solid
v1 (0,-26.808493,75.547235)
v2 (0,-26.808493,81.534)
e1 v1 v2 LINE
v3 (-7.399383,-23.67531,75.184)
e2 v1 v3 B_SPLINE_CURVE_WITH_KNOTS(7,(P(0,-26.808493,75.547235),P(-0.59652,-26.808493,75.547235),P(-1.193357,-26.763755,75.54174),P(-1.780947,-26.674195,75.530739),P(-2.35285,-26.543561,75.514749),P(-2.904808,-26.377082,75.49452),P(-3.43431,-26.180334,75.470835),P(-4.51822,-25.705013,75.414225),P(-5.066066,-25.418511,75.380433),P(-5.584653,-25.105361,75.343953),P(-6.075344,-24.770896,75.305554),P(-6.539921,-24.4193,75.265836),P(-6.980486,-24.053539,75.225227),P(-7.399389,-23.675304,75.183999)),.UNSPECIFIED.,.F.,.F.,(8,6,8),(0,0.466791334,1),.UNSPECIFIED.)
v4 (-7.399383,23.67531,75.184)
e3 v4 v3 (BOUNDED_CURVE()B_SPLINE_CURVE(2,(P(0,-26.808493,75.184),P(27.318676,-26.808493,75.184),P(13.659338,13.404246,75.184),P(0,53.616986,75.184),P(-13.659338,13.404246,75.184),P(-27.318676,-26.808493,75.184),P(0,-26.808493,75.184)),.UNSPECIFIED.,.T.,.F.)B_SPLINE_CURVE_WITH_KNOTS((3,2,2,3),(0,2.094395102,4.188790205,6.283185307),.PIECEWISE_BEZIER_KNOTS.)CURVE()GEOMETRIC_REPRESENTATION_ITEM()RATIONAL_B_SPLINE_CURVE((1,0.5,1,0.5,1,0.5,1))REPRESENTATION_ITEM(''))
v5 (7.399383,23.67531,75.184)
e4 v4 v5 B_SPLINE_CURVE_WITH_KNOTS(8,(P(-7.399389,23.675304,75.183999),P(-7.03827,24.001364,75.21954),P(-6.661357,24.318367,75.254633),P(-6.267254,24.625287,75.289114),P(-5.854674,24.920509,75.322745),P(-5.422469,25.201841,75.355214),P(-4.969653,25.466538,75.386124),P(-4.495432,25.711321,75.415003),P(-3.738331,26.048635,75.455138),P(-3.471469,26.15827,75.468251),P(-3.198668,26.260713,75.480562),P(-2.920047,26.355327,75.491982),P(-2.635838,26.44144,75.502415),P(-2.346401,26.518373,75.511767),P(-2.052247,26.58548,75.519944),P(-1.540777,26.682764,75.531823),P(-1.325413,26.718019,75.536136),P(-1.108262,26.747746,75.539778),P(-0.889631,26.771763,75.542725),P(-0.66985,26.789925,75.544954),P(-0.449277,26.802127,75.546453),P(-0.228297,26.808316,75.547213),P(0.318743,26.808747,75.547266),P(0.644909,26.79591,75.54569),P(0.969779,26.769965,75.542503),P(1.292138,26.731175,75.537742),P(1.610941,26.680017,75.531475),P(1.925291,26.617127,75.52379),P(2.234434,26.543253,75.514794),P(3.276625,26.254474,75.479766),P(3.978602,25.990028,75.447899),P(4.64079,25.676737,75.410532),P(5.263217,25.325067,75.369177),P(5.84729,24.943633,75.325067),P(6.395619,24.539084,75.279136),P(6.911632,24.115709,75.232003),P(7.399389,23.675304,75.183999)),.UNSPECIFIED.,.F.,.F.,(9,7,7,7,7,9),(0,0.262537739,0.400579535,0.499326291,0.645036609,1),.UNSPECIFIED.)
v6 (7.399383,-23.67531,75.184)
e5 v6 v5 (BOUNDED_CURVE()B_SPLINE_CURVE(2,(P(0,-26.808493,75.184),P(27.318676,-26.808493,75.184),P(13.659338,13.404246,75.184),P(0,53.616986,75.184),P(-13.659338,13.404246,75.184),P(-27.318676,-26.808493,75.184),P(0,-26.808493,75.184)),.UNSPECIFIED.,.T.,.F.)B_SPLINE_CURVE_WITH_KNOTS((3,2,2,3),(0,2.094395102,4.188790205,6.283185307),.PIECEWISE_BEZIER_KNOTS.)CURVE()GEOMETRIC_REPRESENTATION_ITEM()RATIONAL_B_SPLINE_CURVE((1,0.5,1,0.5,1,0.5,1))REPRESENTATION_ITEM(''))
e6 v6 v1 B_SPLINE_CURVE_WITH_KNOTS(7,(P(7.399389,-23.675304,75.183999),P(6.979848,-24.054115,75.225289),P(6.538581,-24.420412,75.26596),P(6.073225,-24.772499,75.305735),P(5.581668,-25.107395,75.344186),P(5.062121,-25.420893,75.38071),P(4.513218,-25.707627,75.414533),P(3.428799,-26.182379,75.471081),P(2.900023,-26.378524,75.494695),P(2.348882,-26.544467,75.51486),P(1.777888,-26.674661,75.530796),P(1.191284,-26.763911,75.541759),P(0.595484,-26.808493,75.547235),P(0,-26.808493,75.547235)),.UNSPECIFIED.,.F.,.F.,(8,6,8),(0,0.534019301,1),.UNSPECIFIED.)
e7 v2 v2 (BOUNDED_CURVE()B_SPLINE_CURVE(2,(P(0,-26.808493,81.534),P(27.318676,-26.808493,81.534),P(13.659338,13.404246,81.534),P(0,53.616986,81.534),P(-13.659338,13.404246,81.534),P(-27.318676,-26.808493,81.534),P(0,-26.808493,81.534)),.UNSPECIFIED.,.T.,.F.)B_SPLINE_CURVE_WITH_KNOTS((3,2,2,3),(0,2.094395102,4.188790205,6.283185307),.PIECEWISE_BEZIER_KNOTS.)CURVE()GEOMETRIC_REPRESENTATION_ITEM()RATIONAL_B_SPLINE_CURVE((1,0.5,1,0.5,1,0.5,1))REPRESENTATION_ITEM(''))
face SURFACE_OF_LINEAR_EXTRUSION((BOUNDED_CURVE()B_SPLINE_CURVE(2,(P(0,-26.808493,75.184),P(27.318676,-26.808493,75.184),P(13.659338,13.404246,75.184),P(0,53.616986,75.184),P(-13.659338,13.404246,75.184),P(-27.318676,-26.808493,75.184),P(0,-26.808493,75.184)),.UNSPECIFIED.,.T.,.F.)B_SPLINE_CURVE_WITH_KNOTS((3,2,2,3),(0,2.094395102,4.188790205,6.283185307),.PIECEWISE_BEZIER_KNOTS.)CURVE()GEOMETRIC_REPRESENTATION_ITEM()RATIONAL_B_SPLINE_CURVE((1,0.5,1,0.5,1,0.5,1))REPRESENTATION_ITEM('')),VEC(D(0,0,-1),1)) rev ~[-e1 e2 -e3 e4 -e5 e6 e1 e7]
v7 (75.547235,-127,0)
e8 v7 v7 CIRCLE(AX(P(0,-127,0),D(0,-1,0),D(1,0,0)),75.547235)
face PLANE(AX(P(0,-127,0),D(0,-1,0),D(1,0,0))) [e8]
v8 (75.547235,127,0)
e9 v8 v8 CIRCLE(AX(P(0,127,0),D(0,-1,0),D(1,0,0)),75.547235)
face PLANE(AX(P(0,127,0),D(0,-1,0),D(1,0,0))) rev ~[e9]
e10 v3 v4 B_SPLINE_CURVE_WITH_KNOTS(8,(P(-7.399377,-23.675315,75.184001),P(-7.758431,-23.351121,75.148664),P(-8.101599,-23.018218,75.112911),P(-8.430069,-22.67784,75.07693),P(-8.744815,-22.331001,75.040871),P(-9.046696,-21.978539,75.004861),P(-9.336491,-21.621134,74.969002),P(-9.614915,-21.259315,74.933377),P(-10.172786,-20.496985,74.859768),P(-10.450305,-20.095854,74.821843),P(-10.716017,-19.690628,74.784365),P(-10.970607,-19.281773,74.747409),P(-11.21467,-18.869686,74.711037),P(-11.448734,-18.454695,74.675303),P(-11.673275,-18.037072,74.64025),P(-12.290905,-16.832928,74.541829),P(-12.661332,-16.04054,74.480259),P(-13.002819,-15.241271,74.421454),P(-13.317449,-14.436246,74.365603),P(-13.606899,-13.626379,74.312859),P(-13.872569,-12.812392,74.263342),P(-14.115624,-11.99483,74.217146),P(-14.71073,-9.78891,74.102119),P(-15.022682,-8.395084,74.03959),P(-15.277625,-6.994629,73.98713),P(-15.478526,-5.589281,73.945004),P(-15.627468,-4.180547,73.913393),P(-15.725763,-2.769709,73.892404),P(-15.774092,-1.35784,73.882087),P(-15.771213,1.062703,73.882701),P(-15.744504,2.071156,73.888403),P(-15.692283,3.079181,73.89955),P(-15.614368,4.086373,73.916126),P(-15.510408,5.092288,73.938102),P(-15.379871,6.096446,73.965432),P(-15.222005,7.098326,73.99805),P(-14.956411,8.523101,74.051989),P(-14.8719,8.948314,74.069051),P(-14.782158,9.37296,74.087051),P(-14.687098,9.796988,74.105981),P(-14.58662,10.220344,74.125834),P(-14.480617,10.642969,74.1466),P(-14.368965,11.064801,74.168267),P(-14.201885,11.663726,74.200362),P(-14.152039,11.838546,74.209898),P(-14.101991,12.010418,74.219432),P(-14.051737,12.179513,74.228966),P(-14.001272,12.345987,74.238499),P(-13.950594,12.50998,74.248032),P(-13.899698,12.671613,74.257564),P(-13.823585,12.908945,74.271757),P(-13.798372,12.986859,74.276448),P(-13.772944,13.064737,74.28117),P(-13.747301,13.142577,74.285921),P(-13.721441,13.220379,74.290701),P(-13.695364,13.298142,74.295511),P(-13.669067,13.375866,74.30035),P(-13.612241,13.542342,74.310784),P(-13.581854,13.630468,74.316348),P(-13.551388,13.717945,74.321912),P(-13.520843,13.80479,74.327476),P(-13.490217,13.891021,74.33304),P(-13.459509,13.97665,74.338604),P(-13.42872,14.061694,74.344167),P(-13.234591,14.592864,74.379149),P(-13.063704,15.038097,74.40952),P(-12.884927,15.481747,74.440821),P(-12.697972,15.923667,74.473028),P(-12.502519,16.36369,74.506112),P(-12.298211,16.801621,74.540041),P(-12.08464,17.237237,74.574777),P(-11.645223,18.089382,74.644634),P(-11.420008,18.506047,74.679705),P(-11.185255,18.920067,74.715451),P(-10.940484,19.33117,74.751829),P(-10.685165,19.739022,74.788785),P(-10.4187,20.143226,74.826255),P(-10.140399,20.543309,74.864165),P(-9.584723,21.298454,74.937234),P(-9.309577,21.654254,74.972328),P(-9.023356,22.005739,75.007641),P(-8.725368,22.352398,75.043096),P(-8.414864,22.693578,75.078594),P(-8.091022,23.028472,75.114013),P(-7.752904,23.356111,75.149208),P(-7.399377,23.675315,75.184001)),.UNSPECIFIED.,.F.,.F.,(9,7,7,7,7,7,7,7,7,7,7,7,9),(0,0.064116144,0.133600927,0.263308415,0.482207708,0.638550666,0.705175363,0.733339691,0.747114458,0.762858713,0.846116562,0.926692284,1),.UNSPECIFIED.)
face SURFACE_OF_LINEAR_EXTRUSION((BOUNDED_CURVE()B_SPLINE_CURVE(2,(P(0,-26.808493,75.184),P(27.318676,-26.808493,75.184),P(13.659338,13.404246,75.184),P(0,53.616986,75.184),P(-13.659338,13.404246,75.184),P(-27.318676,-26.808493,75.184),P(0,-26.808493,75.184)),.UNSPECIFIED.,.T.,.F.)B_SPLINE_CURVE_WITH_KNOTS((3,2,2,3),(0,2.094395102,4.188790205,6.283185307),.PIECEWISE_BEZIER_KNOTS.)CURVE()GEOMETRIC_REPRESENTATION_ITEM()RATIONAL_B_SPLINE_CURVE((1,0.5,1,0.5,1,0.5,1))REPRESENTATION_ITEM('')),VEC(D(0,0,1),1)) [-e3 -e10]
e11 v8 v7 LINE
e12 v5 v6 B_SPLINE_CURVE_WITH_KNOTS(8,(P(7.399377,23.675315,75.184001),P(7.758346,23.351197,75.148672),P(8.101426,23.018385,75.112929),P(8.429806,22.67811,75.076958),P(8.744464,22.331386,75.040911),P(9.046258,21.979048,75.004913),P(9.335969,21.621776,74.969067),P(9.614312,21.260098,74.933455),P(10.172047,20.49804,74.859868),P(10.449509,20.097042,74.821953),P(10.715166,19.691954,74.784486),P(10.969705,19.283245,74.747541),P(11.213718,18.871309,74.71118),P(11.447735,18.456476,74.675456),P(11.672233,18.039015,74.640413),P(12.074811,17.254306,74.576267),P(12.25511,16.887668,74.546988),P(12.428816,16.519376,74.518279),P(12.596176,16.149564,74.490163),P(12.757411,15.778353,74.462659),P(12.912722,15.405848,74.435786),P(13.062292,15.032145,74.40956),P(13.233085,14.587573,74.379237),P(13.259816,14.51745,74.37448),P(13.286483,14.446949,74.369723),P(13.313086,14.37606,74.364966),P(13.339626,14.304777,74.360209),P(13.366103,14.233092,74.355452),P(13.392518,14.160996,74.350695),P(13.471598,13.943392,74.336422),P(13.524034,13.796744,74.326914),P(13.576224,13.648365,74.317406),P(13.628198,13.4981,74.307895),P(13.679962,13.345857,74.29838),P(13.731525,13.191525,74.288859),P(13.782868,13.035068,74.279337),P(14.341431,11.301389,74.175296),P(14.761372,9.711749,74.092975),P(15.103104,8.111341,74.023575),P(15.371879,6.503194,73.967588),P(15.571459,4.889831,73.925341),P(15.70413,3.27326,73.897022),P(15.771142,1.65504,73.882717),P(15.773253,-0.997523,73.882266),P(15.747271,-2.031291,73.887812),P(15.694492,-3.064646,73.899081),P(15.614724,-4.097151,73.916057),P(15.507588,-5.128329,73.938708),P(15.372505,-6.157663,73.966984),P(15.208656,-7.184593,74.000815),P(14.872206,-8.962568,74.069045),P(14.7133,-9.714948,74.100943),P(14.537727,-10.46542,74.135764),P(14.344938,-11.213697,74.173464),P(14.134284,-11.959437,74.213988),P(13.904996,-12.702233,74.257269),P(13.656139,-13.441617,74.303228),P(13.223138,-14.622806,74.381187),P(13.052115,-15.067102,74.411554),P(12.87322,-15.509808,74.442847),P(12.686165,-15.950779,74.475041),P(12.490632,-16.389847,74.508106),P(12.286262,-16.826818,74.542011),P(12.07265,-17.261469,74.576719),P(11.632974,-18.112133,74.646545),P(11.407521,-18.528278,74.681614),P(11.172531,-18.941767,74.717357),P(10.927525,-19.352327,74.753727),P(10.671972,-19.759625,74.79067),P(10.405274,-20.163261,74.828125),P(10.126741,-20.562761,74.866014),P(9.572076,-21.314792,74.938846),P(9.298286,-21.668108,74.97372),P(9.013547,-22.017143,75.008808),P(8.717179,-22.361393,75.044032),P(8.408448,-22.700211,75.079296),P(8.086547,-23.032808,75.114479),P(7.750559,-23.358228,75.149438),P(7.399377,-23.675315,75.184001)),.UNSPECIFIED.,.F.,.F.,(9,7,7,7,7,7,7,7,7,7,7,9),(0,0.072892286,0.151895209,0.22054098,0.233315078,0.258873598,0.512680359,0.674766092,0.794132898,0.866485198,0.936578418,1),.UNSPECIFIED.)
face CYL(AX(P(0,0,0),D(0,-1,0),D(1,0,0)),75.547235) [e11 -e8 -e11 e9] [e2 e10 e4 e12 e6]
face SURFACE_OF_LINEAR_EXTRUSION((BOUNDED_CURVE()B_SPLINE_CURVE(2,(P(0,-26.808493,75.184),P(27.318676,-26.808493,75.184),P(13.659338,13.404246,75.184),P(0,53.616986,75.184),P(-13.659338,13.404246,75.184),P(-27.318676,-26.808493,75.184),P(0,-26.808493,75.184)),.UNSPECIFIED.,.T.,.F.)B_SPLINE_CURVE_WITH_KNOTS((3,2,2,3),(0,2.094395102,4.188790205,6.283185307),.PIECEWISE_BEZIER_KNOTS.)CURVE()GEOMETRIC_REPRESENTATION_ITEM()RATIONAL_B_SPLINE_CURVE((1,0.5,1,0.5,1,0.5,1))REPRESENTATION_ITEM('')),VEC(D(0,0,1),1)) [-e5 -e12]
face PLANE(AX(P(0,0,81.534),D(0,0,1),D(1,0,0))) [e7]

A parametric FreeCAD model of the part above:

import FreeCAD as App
import Part
import Sketcher
Q = App.Units.Quantity

doc = App.newDocument("Part")
body = doc.addObject("PartDesign::Body", "Body")

sketch1 = doc.addObject("Sketcher::SketchObject", "Sketch")
body.addObject(sketch1)
sketch1.AttachmentSupport = (doc.XZ_Plane, [""])
sketch1.MapMode = "FlatFace"
sketch1.addGeometry(Part.Circle(App.Vector(0, 0, 0), App.Vector(0, 0, 1), 76), False)
sketch1.addConstraint(Sketcher.Constraint("Coincident", 0, 3, -1, 1))
sketch1.addConstraint(Sketcher.Constraint("Diameter", 0, 151.09447))
pad1 = doc.addObject("PartDesign::Pad", "Pad")
body.addObject(pad1)
pad1.Profile = sketch1
pad1.Length = Q("10 in")
pad1.Midplane = True

sketch2 = doc.addObject("Sketcher::SketchObject", "Sketch001")
body.addObject(sketch2)
sketch2.AttachmentSupport = (doc.XY_Plane, [""])
sketch2.MapMode = "FlatFace"
sketch2.AttachmentOffset = App.Placement(App.Vector(0, 0, 2.96 * 25.4), App.Rotation())
sketch2.addGeometry(Part.BSplineCurve([App.Vector(0, -26.808493, 0), App.Vector(27.318676, -26.808493, 0), App.Vector(13.659338, 13.404246, 0), App.Vector(0, 53.616986, 0), App.Vector(-13.659338, 13.404246, 0), App.Vector(-27.318676, -26.808493, 0), App.Vector(0, -26.808493, 0)], [3, 2, 2, 3], [0, 2.094395102, 4.188790205, 6.283185307], False, 2, [1, 0.5, 1, 0.5, 1, 0.5, 1], False), False)
sketch2.addConstraint(Sketcher.Constraint("Block", 0))
pad2 = doc.addObject("PartDesign::Pad", "Pad001")
body.addObject(pad2)
pad2.Profile = sketch2
pad2.Length = Q("0.5 in")
pad2.Midplane = True

doc.recompute()
